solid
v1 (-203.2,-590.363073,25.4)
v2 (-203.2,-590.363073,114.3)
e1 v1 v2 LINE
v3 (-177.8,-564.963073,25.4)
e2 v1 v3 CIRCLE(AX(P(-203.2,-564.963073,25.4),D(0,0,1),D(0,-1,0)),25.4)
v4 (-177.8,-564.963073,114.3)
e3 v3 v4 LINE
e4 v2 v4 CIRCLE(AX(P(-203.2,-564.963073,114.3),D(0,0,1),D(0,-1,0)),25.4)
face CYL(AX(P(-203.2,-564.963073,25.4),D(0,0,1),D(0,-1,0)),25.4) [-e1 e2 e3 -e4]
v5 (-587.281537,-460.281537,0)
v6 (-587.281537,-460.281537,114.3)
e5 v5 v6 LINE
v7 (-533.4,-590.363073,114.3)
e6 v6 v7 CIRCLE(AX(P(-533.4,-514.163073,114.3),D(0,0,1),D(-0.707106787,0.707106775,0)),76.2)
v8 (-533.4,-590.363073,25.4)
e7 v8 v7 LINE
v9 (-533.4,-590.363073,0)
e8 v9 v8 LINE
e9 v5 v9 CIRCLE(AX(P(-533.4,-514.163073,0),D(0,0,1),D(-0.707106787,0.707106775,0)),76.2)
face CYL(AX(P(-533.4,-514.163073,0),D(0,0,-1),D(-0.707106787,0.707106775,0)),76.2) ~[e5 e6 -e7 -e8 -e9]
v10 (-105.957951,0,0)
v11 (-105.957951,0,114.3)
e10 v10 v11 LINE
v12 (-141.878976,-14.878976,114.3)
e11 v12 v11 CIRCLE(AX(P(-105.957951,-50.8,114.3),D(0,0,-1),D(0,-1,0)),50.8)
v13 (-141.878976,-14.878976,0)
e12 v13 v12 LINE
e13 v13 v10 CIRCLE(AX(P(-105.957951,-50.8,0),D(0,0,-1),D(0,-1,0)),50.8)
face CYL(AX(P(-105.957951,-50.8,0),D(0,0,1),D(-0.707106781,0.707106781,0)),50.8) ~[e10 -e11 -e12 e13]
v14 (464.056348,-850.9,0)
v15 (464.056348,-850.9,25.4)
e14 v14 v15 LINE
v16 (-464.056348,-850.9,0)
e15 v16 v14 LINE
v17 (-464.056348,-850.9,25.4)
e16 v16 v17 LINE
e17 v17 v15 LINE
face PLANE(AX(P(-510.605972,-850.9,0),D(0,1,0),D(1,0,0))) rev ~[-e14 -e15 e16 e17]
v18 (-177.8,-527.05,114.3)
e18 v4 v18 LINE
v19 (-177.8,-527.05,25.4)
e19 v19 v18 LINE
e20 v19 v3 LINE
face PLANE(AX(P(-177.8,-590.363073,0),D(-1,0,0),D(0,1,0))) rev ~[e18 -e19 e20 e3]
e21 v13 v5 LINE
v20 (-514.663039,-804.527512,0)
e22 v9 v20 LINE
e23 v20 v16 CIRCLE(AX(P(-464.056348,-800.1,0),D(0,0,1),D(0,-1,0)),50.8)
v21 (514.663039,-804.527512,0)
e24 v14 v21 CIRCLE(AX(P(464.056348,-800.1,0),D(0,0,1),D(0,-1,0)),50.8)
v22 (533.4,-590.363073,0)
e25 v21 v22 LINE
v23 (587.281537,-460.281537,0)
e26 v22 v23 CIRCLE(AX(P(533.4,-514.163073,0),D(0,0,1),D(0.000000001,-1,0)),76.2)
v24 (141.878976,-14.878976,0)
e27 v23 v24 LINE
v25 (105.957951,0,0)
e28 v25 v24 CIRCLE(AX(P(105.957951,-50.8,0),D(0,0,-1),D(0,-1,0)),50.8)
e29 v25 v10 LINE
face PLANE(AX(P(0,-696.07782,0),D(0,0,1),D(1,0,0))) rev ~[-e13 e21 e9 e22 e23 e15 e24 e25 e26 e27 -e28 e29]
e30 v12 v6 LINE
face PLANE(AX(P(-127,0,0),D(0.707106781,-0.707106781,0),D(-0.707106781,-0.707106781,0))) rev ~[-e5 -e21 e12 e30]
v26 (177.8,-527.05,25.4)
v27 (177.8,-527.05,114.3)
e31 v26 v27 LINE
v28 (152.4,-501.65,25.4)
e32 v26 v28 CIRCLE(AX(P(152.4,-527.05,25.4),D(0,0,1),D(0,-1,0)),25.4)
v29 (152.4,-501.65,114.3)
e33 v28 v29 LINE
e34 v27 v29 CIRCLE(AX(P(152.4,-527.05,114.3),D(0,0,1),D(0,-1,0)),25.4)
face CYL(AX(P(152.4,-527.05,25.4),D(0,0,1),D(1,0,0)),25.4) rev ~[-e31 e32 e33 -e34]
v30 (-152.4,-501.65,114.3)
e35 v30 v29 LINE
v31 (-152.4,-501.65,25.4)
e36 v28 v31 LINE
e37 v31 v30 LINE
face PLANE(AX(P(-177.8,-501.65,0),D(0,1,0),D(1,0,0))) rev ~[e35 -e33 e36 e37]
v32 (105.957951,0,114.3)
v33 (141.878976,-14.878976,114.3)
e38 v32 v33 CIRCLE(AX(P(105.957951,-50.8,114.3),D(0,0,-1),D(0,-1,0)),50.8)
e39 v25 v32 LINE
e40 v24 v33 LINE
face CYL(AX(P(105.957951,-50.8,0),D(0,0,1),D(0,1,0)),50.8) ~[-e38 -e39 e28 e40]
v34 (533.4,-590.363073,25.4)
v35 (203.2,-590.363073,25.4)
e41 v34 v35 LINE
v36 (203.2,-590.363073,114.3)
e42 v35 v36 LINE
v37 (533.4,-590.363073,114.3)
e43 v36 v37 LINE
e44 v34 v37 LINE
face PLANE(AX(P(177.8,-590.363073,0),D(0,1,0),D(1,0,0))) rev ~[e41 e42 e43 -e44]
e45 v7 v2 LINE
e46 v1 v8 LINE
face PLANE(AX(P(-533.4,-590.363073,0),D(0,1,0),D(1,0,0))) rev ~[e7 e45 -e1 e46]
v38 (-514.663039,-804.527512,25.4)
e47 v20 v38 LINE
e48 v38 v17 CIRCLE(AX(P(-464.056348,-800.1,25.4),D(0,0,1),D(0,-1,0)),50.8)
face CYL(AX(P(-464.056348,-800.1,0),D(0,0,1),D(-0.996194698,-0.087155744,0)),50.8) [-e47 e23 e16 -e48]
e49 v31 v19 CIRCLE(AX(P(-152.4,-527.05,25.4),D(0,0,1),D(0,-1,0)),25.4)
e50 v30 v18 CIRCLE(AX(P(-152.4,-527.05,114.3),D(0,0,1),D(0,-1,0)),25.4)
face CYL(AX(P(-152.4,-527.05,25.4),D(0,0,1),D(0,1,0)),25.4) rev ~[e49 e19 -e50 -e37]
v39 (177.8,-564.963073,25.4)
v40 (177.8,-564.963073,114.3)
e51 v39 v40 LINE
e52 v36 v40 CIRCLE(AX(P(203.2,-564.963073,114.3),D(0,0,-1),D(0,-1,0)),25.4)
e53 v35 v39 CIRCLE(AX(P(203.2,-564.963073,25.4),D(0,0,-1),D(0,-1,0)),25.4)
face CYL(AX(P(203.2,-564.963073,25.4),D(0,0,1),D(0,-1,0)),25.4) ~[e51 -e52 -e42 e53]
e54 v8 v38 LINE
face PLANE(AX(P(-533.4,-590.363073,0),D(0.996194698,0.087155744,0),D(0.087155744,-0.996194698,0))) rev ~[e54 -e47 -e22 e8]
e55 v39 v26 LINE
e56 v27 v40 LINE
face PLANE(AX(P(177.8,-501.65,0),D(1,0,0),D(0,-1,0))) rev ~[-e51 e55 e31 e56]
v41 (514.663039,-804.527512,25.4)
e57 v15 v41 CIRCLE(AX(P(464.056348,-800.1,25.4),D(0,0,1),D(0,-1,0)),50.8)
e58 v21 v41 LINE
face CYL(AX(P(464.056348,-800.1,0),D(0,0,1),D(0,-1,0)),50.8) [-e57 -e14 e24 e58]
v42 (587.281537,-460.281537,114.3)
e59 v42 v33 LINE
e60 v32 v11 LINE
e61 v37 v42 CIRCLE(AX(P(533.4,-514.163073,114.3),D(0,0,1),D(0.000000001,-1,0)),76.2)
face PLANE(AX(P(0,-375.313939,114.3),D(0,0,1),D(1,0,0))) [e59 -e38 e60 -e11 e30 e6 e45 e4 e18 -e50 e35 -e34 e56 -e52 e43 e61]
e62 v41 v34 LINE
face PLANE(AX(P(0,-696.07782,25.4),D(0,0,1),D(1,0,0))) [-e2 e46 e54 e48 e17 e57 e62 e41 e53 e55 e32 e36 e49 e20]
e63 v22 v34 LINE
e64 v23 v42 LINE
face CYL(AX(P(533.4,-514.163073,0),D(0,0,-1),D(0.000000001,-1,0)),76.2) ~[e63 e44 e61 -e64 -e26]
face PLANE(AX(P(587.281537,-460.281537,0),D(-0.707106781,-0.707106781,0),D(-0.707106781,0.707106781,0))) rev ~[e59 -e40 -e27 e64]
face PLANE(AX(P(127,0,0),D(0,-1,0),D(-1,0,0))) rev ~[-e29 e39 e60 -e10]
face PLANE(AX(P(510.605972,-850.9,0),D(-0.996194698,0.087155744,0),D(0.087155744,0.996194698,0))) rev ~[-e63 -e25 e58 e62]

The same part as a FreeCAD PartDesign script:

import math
import FreeCAD as App
import Part
import Sketcher
from FreeCAD import Vector
Q = App.Units.Quantity


def edges_at(feature, points):
    """Names of the edges that pass closest to the given points."""
    edges = feature.Shape.Edges
    near = lambda p: min(range(len(edges)), key=lambda i: edges[i].distToShape(Part.Vertex(*p))[0])
    return sorted({f"Edge{near(p) + 1}" for p in points})

doc = App.newDocument("Part")
params = doc.addObject("Spreadsheet::Sheet", "Params")
for row, (alias, value) in enumerate([
    ("sketch1_radius", "3 in"),
    ("sketch1_width", "10 in"),
    ("sketch1_width2", "14 in"),
    ("pad1_length", "4.5 in"),
    ("sketch2_width", "14 in"),
    ("pad2_length", "1 in"),
    ("fillet_radius", "1 in"),
    ("fillet2_radius", "2 in"),
], start=1):
    params.set(f"A{row}", alias)
    params.set(f"B{row}", "=" + value)
    params.setAlias(f"B{row}", alias)

body = doc.addObject("PartDesign::Body", "Body")

sketch1 = body.newObject("Sketcher::SketchObject", "Sketch")
sketch1.AttachmentSupport = (doc.getObject("XY_Plane"), [""])
sketch1.MapMode = "FlatFace"
sketch1.addGeometry(Part.LineSegment(Vector(127, 0, 0), Vector(-127, 0, 0)), False)
sketch1.addGeometry(Part.LineSegment(Vector(-127, 0, 0), Vector(-587.281537, -460.281537, 0)), False)
sketch1.addGeometry(Part.ArcOfCircle(Part.Circle(Vector(-533.4, -514.163073, 0), Vector(0, 0, 1), 76.2), math.radians(135), math.radians(270)), False)
sketch1.addGeometry(Part.LineSegment(Vector(-533.4, -590.363073, 0), Vector(-177.8, -590.363073, 0)), False)
sketch1.addGeometry(Part.LineSegment(Vector(-177.8, -590.363073, 0), Vector(-177.8, -501.65, 0)), False)
sketch1.addGeometry(Part.LineSegment(Vector(-177.8, -501.65, 0), Vector(177.8, -501.65, 0)), False)
sketch1.addGeometry(Part.LineSegment(Vector(177.8, -501.65, 0), Vector(177.8, -590.363073, 0)), False)
sketch1.addGeometry(Part.LineSegment(Vector(177.8, -590.363073, 0), Vector(533.4, -590.363073, 0)), False)
sketch1.addGeometry(Part.ArcOfCircle(Part.Circle(Vector(533.4, -514.163073, 0), Vector(0, 0, 1), 76.2), math.radians(-90), math.radians(45)), False)
sketch1.addGeometry(Part.LineSegment(Vector(587.281537, -460.281537, 0), Vector(127, 0, 0)), False)
sketch1.addConstraint(Sketcher.Constraint("Coincident", 0, 2, 1, 1))
sketch1.addConstraint(Sketcher.Constraint("Tangent", 1, 2, 2, 1))
sketch1.addConstraint(Sketcher.Constraint("Tangent", 2, 2, 3, 1))
sketch1.addConstraint(Sketcher.Constraint("Coincident", 3, 2, 4, 1))
sketch1.addConstraint(Sketcher.Constraint("Coincident", 4, 2, 5, 1))
sketch1.addConstraint(Sketcher.Constraint("Coincident", 5, 2, 6, 1))
sketch1.addConstraint(Sketcher.Constraint("Coincident", 6, 2, 7, 1))
sketch1.addConstraint(Sketcher.Constraint("Tangent", 7, 2, 8, 1))
sketch1.addConstraint(Sketcher.Constraint("Tangent", 8, 2, 9, 1))
sketch1.addConstraint(Sketcher.Constraint("Coincident", 9, 2, 0, 1))
sketch1.addConstraint(Sketcher.Constraint("Horizontal", 0))
sketch1.addConstraint(Sketcher.Constraint("Horizontal", 3))
sketch1.addConstraint(Sketcher.Constraint("Vertical", 4))
sketch1.addConstraint(Sketcher.Constraint("Horizontal", 5))
sketch1.addConstraint(Sketcher.Constraint("Vertical", 6))
sketch1.addConstraint(Sketcher.Constraint("Horizontal", 7))
sketch1.addConstraint(Sketcher.Constraint("Equal", 2, 8))
sketch1.addConstraint(Sketcher.Constraint("Symmetric", 0, 2, 9, 2, -1, 1))
sketch1.addConstraint(Sketcher.Constraint("Symmetric", 2, 3, 8, 3, -2))
sketch1.addConstraint(Sketcher.Constraint("Perpendicular", 1, 9))
sketch1.addConstraint(Sketcher.Constraint("Equal", 3, 5))
sketch1.addConstraint(Sketcher.Constraint("Equal", 5, 7))
sketch1.addConstraint(Sketcher.Constraint("Radius", 2, Q("3 in")))
sketch1.addConstraint(Sketcher.Constraint("DistanceX", 0, 2, 0, 1, Q("10 in")))
sketch1.addConstraint(Sketcher.Constraint("DistanceX", 3, 1, 3, 2, Q("14 in")))
sketch1.addConstraint(Sketcher.Constraint("DistanceY", 4, 2, -1, 1, Q("19.75 in")))
sketch1.setExpression("Constraints[22]", "Params.sketch1_radius")
sketch1.setExpression("Constraints[23]", "Params.sketch1_width")
sketch1.setExpression("Constraints[24]", "Params.sketch1_width2")
pad1 = body.newObject("PartDesign::Pad", "Pad")
pad1.Profile = sketch1
pad1.setExpression("Length", "Params.pad1_length")

sketch2 = body.newObject("Sketcher::SketchObject", "Sketch001")
sketch2.AttachmentSupport = (doc.getObject("XY_Plane"), [""])
sketch2.MapMode = "FlatFace"
sketch2.addGeometry(Part.LineSegment(Vector(-177.8, -590.363073, 0), Vector(-533.4, -590.363073, 0)), False)
sketch2.addGeometry(Part.LineSegment(Vector(-533.4, -590.363073, 0), Vector(-510.605972, -850.9, 0)), False)
sketch2.addGeometry(Part.LineSegment(Vector(-510.605972, -850.9, 0), Vector(510.605972, -850.9, 0)), False)
sketch2.addGeometry(Part.LineSegment(Vector(510.605972, -850.9, 0), Vector(533.4, -590.363073, 0)), False)
sketch2.addGeometry(Part.LineSegment(Vector(533.4, -590.363073, 0), Vector(177.8, -590.363073, 0)), False)
sketch2.addGeometry(Part.LineSegment(Vector(177.8, -590.363073, 0), Vector(177.8, -501.65, 0)), False)
sketch2.addGeometry(Part.LineSegment(Vector(177.8, -501.65, 0), Vector(-177.8, -501.65, 0)), False)
sketch2.addGeometry(Part.LineSegment(Vector(-177.8, -501.65, 0), Vector(-177.8, -590.363073, 0)), False)
sketch2.addConstraint(Sketcher.Constraint("Coincident", 0, 2, 1, 1))
sketch2.addConstraint(Sketcher.Constraint("Coincident", 1, 2, 2, 1))
sketch2.addConstraint(Sketcher.Constraint("Coincident", 2, 2, 3, 1))
sketch2.addConstraint(Sketcher.Constraint("Coincident", 3, 2, 4, 1))
sketch2.addConstraint(Sketcher.Constraint("Coincident", 4, 2, 5, 1))
sketch2.addConstraint(Sketcher.Constraint("Coincident", 5, 2, 6, 1))
sketch2.addConstraint(Sketcher.Constraint("Coincident", 6, 2, 7, 1))
sketch2.addConstraint(Sketcher.Constraint("Coincident", 7, 2, 0, 1))
sketch2.addConstraint(Sketcher.Constraint("Horizontal", 0))
sketch2.addConstraint(Sketcher.Constraint("Horizontal", 2))
sketch2.addConstraint(Sketcher.Constraint("Horizontal", 4))
sketch2.addConstraint(Sketcher.Constraint("Vertical", 5))
sketch2.addConstraint(Sketcher.Constraint("Horizontal", 6))
sketch2.addConstraint(Sketcher.Constraint("Vertical", 7))
sketch2.addConstraint(Sketcher.Constraint("Symmetric", 0, 2, 3, 2, -2))
sketch2.addConstraint(Sketcher.Constraint("Equal", 0, 4))
sketch2.addConstraint(Sketcher.Constraint("Equal", 4, 6))
sketch2.addConstraint(Sketcher.Constraint("Equal", 1, 3))
sketch2.addConstraint(Sketcher.Constraint("DistanceX", 0, 2, 0, 1, Q("14 in")))
sketch2.addConstraint(Sketcher.Constraint("Angle", 1, Q("-85 deg")))
sketch2.addConstraint(Sketcher.Constraint("DistanceY", 1, 2, -1, 1, Q("33.5 in")))
sketch2.addConstraint(Sketcher.Constraint("DistanceY", 5, 2, -1, 1, Q("19.75 in")))
sketch2.addConstraint(Sketcher.Constraint("DistanceX", 2, 1, 2, 2, 1021.211944))
sketch2.setExpression("Constraints[18]", "Params.sketch2_width")
pad2 = body.newObject("PartDesign::Pad", "Pad001")
pad2.Profile = sketch2
pad2.setExpression("Length", "Params.pad2_length")
doc.recompute()

fillet = body.newObject("PartDesign::Fillet", "Fillet")
fillet.Base = (pad2, edges_at(pad2, [
    (-177.8, -590.363, 69.85),
    (177.8, -590.363, 69.85),
    (177.8, -501.65, 69.85),
    (-177.8, -501.65, 69.85),
]))
fillet.setExpression("Radius", "Params.fillet_radius")
doc.recompute()

fillet2 = body.newObject("PartDesign::Fillet", "Fillet001")
fillet2.Base = (fillet, edges_at(fillet, [
    (-127, 0, 57.15),
    (127, 0, 57.15),
    (-510.606, -850.9, 12.7),
    (510.606, -850.9, 12.7),
]))
fillet2.setExpression("Radius", "Params.fillet2_radius")

doc.recompute()
